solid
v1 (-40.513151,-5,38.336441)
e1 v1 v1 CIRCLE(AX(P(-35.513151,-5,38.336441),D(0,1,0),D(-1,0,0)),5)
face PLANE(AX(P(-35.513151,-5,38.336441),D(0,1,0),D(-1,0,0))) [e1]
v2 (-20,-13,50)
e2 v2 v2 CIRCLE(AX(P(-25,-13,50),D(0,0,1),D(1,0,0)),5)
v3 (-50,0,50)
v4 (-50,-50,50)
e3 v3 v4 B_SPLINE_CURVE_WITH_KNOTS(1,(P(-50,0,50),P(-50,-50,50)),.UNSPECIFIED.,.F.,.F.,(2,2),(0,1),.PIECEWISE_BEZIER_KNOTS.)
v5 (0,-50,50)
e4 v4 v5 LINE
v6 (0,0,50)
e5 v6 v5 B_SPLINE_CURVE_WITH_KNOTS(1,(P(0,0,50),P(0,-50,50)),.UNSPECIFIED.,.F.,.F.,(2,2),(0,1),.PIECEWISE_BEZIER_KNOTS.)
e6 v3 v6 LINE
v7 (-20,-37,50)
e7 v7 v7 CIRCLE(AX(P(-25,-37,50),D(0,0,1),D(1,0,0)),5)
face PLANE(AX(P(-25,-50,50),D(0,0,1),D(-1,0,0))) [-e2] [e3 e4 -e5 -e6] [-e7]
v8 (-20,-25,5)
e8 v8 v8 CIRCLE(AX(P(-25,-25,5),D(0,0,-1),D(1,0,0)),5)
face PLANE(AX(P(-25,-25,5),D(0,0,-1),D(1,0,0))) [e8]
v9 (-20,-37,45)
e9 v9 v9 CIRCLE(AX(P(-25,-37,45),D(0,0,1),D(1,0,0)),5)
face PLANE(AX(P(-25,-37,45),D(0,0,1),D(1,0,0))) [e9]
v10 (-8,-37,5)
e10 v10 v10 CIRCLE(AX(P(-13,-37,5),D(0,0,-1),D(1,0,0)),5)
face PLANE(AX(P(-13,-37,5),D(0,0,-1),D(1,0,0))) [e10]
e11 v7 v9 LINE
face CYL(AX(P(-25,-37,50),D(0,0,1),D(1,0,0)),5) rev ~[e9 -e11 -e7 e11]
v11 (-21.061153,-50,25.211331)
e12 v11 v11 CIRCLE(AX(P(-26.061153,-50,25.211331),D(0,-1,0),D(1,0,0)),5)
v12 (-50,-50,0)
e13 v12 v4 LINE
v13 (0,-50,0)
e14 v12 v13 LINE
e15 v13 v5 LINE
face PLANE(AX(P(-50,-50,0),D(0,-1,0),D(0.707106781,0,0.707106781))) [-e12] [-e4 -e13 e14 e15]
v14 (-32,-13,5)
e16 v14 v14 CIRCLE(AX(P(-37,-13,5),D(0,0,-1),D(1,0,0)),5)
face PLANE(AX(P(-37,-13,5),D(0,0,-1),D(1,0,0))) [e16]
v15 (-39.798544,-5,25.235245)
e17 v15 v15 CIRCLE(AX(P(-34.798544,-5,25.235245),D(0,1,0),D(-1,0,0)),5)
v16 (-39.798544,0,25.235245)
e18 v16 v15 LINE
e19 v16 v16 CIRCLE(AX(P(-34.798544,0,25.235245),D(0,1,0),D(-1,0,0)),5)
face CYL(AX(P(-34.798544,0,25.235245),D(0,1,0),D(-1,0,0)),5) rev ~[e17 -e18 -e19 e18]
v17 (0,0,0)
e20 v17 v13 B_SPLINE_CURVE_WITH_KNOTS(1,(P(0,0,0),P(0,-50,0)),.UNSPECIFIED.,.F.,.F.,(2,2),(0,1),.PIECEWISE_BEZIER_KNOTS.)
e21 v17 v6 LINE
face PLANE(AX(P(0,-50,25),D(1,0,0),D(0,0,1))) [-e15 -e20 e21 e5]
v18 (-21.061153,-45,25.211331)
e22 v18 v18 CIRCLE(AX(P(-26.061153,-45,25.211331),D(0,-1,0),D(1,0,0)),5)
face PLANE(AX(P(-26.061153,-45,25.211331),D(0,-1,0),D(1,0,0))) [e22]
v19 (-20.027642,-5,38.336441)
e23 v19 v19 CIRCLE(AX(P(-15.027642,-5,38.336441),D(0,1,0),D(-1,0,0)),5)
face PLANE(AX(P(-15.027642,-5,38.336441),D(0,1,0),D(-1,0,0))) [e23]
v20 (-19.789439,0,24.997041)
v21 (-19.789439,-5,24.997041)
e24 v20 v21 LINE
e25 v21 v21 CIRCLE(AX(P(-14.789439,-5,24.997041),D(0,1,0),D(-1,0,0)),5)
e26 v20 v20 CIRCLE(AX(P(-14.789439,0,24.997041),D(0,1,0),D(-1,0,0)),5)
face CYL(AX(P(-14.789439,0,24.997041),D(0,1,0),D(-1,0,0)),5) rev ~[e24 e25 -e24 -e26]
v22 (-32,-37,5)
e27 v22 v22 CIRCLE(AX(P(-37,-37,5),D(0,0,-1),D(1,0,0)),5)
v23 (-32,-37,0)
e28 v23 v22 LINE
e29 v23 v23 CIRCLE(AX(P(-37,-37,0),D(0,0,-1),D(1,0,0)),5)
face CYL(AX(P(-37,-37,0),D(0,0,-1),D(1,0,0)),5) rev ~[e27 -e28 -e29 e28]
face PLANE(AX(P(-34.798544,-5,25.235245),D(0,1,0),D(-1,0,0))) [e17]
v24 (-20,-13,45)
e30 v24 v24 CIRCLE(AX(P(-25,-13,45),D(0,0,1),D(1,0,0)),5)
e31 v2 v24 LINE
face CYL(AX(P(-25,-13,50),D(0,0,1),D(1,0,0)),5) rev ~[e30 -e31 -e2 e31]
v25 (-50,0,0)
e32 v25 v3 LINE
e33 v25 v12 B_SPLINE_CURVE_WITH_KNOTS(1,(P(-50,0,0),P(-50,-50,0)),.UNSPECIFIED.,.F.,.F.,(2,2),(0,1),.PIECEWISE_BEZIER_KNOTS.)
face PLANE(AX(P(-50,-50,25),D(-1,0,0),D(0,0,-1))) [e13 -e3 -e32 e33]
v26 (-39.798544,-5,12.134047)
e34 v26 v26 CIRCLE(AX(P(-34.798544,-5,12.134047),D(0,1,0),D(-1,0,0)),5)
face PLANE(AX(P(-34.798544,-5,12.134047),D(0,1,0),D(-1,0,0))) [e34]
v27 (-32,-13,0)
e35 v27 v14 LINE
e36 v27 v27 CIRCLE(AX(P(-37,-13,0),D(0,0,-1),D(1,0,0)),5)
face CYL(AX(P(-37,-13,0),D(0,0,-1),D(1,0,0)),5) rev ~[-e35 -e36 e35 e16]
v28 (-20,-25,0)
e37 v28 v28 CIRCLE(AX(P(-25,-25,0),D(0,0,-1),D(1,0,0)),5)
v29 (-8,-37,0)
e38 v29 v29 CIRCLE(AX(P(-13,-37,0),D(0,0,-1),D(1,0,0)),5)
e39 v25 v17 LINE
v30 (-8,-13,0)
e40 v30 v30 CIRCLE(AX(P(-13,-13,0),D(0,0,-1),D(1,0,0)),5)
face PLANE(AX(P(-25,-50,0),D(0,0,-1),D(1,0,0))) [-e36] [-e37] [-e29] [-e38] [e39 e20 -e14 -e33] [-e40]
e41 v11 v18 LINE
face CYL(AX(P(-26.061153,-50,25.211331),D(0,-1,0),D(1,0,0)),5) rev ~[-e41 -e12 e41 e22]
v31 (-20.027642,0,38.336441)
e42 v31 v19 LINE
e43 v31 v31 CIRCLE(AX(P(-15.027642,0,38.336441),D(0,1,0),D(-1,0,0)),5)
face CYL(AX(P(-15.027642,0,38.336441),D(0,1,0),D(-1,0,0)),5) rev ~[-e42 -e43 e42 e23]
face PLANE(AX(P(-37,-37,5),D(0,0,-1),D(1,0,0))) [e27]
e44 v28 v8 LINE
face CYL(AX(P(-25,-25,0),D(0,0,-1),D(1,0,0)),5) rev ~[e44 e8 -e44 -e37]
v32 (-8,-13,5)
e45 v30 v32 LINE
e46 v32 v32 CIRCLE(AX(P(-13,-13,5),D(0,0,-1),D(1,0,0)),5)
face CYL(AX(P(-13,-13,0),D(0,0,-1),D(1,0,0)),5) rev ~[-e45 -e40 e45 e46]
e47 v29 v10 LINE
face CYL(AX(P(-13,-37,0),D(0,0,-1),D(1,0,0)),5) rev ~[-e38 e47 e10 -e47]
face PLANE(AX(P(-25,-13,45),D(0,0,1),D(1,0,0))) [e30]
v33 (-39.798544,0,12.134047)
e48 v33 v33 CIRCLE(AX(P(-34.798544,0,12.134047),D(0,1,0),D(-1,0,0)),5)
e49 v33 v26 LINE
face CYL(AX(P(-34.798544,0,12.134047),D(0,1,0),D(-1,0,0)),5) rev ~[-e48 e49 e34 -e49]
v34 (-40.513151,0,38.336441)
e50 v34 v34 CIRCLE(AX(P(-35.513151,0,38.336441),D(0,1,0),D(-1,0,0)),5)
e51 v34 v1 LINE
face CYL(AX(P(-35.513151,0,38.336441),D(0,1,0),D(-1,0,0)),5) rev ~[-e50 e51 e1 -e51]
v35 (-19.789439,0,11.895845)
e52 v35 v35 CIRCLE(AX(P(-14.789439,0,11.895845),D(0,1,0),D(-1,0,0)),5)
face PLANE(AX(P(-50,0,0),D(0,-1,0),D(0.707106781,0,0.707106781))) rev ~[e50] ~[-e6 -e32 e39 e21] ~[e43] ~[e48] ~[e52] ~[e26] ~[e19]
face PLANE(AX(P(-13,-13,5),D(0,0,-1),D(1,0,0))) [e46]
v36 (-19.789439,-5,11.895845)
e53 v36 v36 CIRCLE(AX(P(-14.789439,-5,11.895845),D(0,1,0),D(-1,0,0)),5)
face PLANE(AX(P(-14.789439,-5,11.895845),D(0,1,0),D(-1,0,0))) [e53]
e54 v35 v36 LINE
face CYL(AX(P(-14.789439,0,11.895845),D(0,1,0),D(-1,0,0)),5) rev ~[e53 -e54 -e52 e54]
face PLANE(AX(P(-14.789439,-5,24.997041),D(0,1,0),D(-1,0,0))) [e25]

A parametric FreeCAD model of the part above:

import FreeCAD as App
import Part
import Sketcher

V = App.Vector
Q = App.Units.Quantity


def add_polygon(sketch, points):
    """Adds a closed chain of lines whose ends are joined by coincident constraints."""
    first, n = sketch.GeometryCount, len(points)
    for a, b in zip(points, points[1:] + points[:1]):
        sketch.addGeometry(Part.LineSegment(App.Vector(*a, 0), App.Vector(*b, 0)), False)
    for i in range(n):
        sketch.addConstraint(Sketcher.Constraint("Coincident", first + i, 2, first + (i + 1) % n, 1))

doc = App.newDocument("Part")
body = doc.addObject("PartDesign::Body", "Body")

sketch1 = body.newObject("Sketcher::SketchObject", "Sketch")
sketch1.AttachmentSupport = (doc.getObject("XZ_Plane"), [""])
sketch1.MapMode = "FlatFace"
add_polygon(sketch1, [(-50, 50), (-50, 0), (0, 0), (0, 50)])
sketch1.addConstraint(Sketcher.Constraint("Vertical", 0))
sketch1.addConstraint(Sketcher.Constraint("Horizontal", 1))
sketch1.addConstraint(Sketcher.Constraint("Vertical", 2))
sketch1.addConstraint(Sketcher.Constraint("Horizontal", 3))
sketch1.addConstraint(Sketcher.Constraint("Coincident", 1, 2, -1, 1))
sketch1.addConstraint(Sketcher.Constraint("Equal", 3, 0))
sketch1.addConstraint(Sketcher.Constraint("DistanceX", 1, 1, 1, 2, Q("50 mm")))

sketch2 = body.newObject("Sketcher::SketchObject", "Sketch001")
sketch2.AttachmentSupport = (doc.getObject("XZ_Plane"), [""])
sketch2.MapMode = "FlatFace"
sketch2.AttachmentOffset = App.Placement(V(0, 0, 50), App.Rotation())
add_polygon(sketch2, [(-50, 50), (-50, 0), (0, 0), (0, 50)])
sketch2.addConstraint(Sketcher.Constraint("Vertical", 0))
sketch2.addConstraint(Sketcher.Constraint("Horizontal", 1))
sketch2.addConstraint(Sketcher.Constraint("Vertical", 2))
sketch2.addConstraint(Sketcher.Constraint("Horizontal", 3))
sketch2.addConstraint(Sketcher.Constraint("Coincident", 1, 2, -1, 1))
sketch2.addConstraint(Sketcher.Constraint("Equal", 3, 0))
sketch2.addConstraint(Sketcher.Constraint("DistanceX", 1, 1, 1, 2, Q("50 mm")))

additiveloft = body.newObject("PartDesign::AdditiveLoft", "AdditiveLoft")
additiveloft.Profile = sketch1
additiveloft.Sections = [sketch2]

sketch3 = body.newObject("Sketcher::SketchObject", "Sketch002")
sketch3.AttachmentSupport = (doc.getObject("XZ_Plane"), [""])
sketch3.MapMode = "FlatFace"
sketch3.AttachmentOffset = App.Placement(V(0, 0, 50), App.Rotation())
sketch3.addGeometry(Part.Circle(V(-26, 25, 0), V(0, 0, 1), 5), False)
sketch3.addConstraint(Sketcher.Constraint("Diameter", 0, Q("10 mm")))
sketch3.addConstraint(Sketcher.Constraint("DistanceY", -1, 1, 0, 3, Q("25.211331 mm")))
sketch3.addConstraint(Sketcher.Constraint("DistanceX", 0, 3, -1, 1, Q("26.061153 mm")))
pocket1 = body.newObject("PartDesign::Pocket", "Pocket")
pocket1.Profile = sketch3
pocket1.Length = 5

sketch4 = body.newObject("Sketcher::SketchObject", "Sketch003")
sketch4.AttachmentSupport = (doc.getObject("XY_Plane"), [""])
sketch4.MapMode = "FlatFace"
sketch4.addGeometry(Part.Circle(V(-25, -25, 0), V(0, 0, 1), 5), False)
sketch4.addGeometry(Part.Circle(V(-37, -37, 0), V(0, 0, 1), 5), False)
sketch4.addGeometry(Part.Circle(V(-13, -37, 0), V(0, 0, 1), 5), False)
sketch4.addGeometry(Part.Circle(V(-13, -13, 0), V(0, 0, 1), 5), False)
sketch4.addGeometry(Part.Circle(V(-37, -13, 0), V(0, 0, 1), 5), False)
sketch4.addConstraint(Sketcher.Constraint("Equal", 0, 1))
sketch4.addConstraint(Sketcher.Constraint("Equal", 1, 2))
sketch4.addConstraint(Sketcher.Constraint("Equal", 2, 3))
sketch4.addConstraint(Sketcher.Constraint("Equal", 3, 4))
sketch4.addConstraint(Sketcher.Constraint("Horizontal", 1, 3, 2, 3))
sketch4.addConstraint(Sketcher.Constraint("Horizontal", 3, 3, 4, 3))
sketch4.addConstraint(Sketcher.Constraint("Vertical", 2, 3, 3, 3))
sketch4.addConstraint(Sketcher.Constraint("Vertical", 1, 3, 4, 3))
sketch4.addConstraint(Sketcher.Constraint("Diameter", 0, Q("10 mm")))
sketch4.addConstraint(Sketcher.Constraint("DistanceX", 0, 3, -1, 1, Q("25 mm")))
sketch4.addConstraint(Sketcher.Constraint("DistanceY", 0, 3, -1, 1, Q("25 mm")))
sketch4.addConstraint(Sketcher.Constraint("DistanceX", 1, 3, -1, 1, Q("37 mm")))
sketch4.addConstraint(Sketcher.Constraint("DistanceY", 1, 3, -1, 1, Q("37 mm")))
sketch4.addConstraint(Sketcher.Constraint("DistanceX", 2, 3, -1, 1, Q("13 mm")))
sketch4.addConstraint(Sketcher.Constraint("DistanceY", 3, 3, -1, 1, Q("13 mm")))
pocket2 = body.newObject("PartDesign::Pocket", "Pocket001")
pocket2.Profile = sketch4
pocket2.Length = 5
pocket2.Reversed = True

sketch5 = body.newObject("Sketcher::SketchObject", "Sketch004")
sketch5.AttachmentSupport = (doc.getObject("XZ_Plane"), [""])
sketch5.MapMode = "FlatFace"
sketch5.addGeometry(Part.Circle(V(-15, 38, 0), V(0, 0, 1), 5), False)
sketch5.addGeometry(Part.Circle(V(-15, 25, 0), V(0, 0, 1), 5), False)
sketch5.addGeometry(Part.Circle(V(-15, 12, 0), V(0, 0, 1), 5), False)
sketch5.addGeometry(Part.Circle(V(-36, 38, 0), V(0, 0, 1), 5), False)
sketch5.addGeometry(Part.Circle(V(-35, 25, 0), V(0, 0, 1), 5), False)
sketch5.addGeometry(Part.Circle(V(-35, 12, 0), V(0, 0, 1), 5), False)
sketch5.addConstraint(Sketcher.Constraint("Equal", 0, 1))
sketch5.addConstraint(Sketcher.Constraint("Equal", 1, 2))
sketch5.addConstraint(Sketcher.Constraint("Equal", 2, 3))
sketch5.addConstraint(Sketcher.Constraint("Equal", 3, 4))
sketch5.addConstraint(Sketcher.Constraint("Equal", 4, 5))
sketch5.addConstraint(Sketcher.Constraint("Horizontal", 0, 3, 3, 3))
sketch5.addConstraint(Sketcher.Constraint("Vertical", 1, 3, 2, 3))
sketch5.addConstraint(Sketcher.Constraint("Vertical", 4, 3, 5, 3))
sketch5.addConstraint(Sketcher.Constraint("Diameter", 0, Q("10 mm")))
sketch5.addConstraint(Sketcher.Constraint("DistanceY", 1, 3, 0, 3, Q("13.3394 mm")))
sketch5.addConstraint(Sketcher.Constraint("DistanceX", 4, 3, 0, 3, Q("19.770902 mm")))
sketch5.addConstraint(Sketcher.Constraint("DistanceY", 2, 3, 4, 3, Q("13.3394 mm")))
sketch5.addConstraint(Sketcher.Constraint("DistanceY", -1, 1, 0, 3, Q("38.336441 mm")))
sketch5.addConstraint(Sketcher.Constraint("DistanceX", 1, 3, -1, 1, Q("14.789439 mm")))
sketch5.addConstraint(Sketcher.Constraint("DistanceX", 3, 3, -1, 1, Q("35.513151 mm")))
sketch5.addConstraint(Sketcher.Constraint("DistanceX", 3, 3, 0, 3, Q("20.485509 mm")))
sketch5.addConstraint(Sketcher.Constraint("DistanceY", -1, 1, 2, 3, Q("11.895845 mm")))
sketch5.addConstraint(Sketcher.Constraint("DistanceY", -1, 1, 5, 3, Q("12.134047 mm")))
pocket3 = body.newObject("PartDesign::Pocket", "Pocket002")
pocket3.Profile = sketch5
pocket3.Length = 5
pocket3.Reversed = True

sketch6 = body.newObject("Sketcher::SketchObject", "Sketch005")
sketch6.AttachmentSupport = (doc.getObject("XY_Plane"), [""])
sketch6.MapMode = "FlatFace"
sketch6.AttachmentOffset = App.Placement(V(0, 0, 50), App.Rotation())
sketch6.addGeometry(Part.Circle(V(-25, -37, 0), V(0, 0, 1), 5), False)
sketch6.addGeometry(Part.Circle(V(-25, -13, 0), V(0, 0, 1), 5), False)
sketch6.addConstraint(Sketcher.Constraint("Equal", 0, 1))
sketch6.addConstraint(Sketcher.Constraint("Vertical", 0, 3, 1, 3))
sketch6.addConstraint(Sketcher.Constraint("Diameter", 0, Q("10 mm")))
sketch6.addConstraint(Sketcher.Constraint("DistanceX", 0, 3, -1, 1, Q("25 mm")))
sketch6.addConstraint(Sketcher.Constraint("DistanceY", 0, 3, -1, 1, Q("37 mm")))
sketch6.addConstraint(Sketcher.Constraint("DistanceY", 1, 3, -1, 1, Q("13 mm")))
pocket4 = body.newObject("PartDesign::Pocket", "Pocket003")
pocket4.Profile = sketch6
pocket4.Length = 5

doc.recompute()
